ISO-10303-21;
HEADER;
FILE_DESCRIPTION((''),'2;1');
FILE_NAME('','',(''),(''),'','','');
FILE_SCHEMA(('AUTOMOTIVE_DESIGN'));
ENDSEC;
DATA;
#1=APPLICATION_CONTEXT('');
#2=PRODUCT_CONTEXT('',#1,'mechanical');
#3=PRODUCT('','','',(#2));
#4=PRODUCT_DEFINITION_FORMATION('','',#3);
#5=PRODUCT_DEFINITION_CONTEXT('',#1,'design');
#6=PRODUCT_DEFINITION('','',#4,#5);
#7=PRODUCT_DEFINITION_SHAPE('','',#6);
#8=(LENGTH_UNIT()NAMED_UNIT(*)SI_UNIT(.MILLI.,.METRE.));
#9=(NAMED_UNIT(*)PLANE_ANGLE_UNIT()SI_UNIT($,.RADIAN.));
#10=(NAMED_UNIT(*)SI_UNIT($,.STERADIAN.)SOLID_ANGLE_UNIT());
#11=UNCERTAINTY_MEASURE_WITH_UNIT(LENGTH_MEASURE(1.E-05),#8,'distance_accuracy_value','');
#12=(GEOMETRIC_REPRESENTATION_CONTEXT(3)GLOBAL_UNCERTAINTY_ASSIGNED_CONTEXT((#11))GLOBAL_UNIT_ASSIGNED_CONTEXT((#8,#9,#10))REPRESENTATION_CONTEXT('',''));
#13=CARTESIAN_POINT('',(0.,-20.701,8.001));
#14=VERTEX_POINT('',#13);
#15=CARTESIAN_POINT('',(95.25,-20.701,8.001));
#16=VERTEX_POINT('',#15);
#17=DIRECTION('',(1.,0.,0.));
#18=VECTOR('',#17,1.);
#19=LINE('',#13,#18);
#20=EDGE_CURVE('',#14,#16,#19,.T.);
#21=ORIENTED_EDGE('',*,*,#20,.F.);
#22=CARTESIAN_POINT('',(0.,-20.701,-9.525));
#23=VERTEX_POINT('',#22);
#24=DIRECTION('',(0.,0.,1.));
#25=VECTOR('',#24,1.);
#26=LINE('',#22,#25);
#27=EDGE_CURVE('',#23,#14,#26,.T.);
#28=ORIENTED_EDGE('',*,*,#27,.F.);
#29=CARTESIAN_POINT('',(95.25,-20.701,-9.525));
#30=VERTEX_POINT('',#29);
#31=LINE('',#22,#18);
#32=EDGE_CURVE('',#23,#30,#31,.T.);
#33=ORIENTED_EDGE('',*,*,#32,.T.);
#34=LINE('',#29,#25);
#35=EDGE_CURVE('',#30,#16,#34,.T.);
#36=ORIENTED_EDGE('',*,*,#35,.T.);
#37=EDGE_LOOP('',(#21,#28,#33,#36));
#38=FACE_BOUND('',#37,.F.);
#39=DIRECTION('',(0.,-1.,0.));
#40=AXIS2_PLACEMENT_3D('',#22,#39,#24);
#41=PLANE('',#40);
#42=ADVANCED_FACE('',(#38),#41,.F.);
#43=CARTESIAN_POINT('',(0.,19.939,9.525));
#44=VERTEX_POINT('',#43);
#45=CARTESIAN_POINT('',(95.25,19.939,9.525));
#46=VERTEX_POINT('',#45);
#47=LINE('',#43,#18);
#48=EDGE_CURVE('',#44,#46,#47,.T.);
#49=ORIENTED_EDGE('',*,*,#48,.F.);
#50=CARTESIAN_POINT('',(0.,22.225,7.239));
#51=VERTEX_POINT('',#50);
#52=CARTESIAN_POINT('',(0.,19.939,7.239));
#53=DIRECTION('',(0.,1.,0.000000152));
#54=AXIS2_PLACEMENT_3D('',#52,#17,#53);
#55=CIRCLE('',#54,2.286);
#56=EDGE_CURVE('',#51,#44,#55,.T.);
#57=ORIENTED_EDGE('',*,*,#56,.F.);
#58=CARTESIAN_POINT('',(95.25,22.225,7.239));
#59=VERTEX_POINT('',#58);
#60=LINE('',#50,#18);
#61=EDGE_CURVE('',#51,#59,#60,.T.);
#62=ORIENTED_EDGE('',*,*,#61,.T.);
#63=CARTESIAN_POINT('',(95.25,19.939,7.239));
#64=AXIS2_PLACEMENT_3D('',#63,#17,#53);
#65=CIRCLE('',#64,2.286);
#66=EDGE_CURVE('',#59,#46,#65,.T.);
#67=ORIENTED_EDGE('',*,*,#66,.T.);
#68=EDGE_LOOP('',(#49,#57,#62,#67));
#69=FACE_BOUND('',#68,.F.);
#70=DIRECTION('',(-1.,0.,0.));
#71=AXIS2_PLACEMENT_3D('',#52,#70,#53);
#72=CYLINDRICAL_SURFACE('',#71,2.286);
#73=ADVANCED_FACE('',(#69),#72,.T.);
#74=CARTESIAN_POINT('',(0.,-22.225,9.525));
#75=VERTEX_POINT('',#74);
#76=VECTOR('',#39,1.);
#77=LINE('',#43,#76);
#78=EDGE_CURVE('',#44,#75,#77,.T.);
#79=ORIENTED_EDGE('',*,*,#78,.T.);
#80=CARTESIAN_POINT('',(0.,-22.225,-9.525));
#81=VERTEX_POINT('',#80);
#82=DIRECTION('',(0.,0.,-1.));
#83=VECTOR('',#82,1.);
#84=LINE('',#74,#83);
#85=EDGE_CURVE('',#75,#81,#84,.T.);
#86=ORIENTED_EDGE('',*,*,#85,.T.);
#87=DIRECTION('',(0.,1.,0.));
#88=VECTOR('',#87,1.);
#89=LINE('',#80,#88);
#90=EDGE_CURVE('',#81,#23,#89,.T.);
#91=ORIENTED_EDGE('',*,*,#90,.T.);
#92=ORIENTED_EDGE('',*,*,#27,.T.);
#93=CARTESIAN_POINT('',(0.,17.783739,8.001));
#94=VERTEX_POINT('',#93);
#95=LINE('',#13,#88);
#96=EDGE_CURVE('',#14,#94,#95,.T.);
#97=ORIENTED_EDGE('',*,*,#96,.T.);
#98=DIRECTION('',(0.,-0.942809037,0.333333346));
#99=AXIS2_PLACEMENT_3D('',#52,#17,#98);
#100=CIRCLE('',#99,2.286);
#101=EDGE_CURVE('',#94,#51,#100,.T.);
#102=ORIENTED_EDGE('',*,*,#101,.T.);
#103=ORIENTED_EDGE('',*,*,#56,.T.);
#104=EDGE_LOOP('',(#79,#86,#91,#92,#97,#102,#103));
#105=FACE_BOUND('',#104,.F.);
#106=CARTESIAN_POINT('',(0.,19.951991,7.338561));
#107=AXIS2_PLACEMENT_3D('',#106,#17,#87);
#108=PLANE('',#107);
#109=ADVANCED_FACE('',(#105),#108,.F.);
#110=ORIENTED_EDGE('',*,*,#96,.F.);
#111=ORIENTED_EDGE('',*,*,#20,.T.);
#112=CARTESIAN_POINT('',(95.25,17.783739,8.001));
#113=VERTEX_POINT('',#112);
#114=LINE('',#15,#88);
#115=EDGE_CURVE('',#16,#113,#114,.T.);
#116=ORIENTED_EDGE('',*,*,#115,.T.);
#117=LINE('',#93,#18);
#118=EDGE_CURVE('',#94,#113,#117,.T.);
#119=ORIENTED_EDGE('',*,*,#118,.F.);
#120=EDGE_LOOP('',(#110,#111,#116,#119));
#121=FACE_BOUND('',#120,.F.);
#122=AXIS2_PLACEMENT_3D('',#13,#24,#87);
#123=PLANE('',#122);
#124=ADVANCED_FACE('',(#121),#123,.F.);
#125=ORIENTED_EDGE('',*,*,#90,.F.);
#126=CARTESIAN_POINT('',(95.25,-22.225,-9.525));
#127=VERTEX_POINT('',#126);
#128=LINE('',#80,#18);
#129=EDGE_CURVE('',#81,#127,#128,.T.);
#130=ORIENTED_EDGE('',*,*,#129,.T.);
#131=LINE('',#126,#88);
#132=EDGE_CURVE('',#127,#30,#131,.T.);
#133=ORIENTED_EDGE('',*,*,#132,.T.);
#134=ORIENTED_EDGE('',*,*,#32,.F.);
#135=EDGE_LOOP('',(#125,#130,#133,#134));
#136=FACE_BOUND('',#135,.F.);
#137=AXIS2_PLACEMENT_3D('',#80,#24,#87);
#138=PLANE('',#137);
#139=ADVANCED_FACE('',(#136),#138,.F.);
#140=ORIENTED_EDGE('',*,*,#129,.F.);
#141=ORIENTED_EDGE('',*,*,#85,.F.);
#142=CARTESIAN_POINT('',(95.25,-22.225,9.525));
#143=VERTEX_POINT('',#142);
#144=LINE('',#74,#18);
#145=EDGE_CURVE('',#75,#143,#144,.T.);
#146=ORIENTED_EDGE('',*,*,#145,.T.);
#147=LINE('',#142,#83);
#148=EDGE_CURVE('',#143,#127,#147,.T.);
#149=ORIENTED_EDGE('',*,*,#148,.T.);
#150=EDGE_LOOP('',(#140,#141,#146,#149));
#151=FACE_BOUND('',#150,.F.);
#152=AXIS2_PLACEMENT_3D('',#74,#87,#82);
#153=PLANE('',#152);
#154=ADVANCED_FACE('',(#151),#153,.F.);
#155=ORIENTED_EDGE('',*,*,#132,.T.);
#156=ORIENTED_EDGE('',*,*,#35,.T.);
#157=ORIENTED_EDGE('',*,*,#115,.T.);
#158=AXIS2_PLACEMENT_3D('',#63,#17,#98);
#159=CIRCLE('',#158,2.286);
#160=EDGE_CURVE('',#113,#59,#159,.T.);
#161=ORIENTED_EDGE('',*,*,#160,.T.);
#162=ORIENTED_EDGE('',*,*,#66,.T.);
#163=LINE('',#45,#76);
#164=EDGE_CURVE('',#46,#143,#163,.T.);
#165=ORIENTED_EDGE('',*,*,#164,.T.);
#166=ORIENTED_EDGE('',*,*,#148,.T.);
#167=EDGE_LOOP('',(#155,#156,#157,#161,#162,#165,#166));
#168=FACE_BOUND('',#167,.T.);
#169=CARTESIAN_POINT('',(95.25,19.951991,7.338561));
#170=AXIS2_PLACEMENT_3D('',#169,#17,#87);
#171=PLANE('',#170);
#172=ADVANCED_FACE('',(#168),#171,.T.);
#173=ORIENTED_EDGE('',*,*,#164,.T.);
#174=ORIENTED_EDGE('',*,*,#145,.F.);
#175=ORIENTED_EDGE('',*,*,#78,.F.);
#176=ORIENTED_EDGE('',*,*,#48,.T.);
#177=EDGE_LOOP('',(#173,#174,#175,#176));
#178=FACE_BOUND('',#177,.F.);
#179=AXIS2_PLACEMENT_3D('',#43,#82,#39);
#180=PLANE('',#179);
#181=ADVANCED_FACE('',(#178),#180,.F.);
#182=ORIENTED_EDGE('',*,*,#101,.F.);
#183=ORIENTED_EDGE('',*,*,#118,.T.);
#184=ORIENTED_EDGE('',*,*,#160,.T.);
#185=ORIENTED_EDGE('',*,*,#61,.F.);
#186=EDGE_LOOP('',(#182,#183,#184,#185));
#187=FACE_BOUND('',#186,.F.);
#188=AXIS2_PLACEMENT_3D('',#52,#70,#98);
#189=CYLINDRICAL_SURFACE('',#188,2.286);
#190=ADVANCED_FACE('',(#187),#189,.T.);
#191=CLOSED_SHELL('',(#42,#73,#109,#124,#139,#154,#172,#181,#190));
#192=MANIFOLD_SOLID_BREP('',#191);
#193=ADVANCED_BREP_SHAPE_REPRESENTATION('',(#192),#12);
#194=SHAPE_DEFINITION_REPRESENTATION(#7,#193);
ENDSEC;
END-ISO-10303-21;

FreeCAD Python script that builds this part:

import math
import FreeCAD as App
import Part
import Sketcher
from FreeCAD import Vector
Q = App.Units.Quantity

doc = App.newDocument("Part")
body = doc.addObject("PartDesign::Body", "Body")

# Sketch on YZ plane
sketch1 = body.newObject("Sketcher::SketchObject", "Sketch")
sketch1.AttachmentSupport = (doc.getObject("YZ_Plane"), [""])
sketch1.MapMode = "FlatFace"
sketch1.addGeometry([
    Part.ArcOfCircle(Part.Circle(Vector(19.939, 7.239, 0), Vector(0, 0, 1), 2.286), math.radians(0.000009), math.radians(89.999991)),  # 0
    Part.LineSegment(Vector(19.939, 9.525, 0), Vector(-22.225, 9.525, 0)),  # 1
    Part.LineSegment(Vector(-22.225, 9.525, 0), Vector(-22.225, -9.525, 0)),  # 2
    Part.LineSegment(Vector(-22.225, -9.525, 0), Vector(-20.701, -9.525, 0)),  # 3
    Part.LineSegment(Vector(-20.701, -9.525, 0), Vector(-20.701, 8.001, 0)),  # 4
    Part.LineSegment(Vector(-20.701, 8.001, 0), Vector(17.783739, 8.001, 0)),  # 5
    Part.ArcOfCircle(Part.Circle(Vector(19.939, 7.239, 0), Vector(0, 0, 1), 2.286), math.radians(160.528779), math.radians(359.999999)),  # 6
], False)
sketch1.addConstraint([
    Sketcher.Constraint("Tangent", 0, 2, 1, 1),
    Sketcher.Constraint("Coincident", 1, 2, 2, 1),
    Sketcher.Constraint("Coincident", 2, 2, 3, 1),
    Sketcher.Constraint("Coincident", 3, 2, 4, 1),
    Sketcher.Constraint("Coincident", 4, 2, 5, 1),
    Sketcher.Constraint("Coincident", 5, 2, 6, 1),
    Sketcher.Constraint("Tangent", 6, 2, 0, 1),
    Sketcher.Constraint("Horizontal", 1),
    Sketcher.Constraint("Vertical", 2),
    Sketcher.Constraint("Horizontal", 3),
    Sketcher.Constraint("Vertical", 4),
    Sketcher.Constraint("Horizontal", 5),
    Sketcher.Constraint("Equal", 0, 6),
    Sketcher.Constraint("Horizontal", 0, 3, 6, 2),
    Sketcher.Constraint("Radius", 0, Q("0.09 in")),
    Sketcher.Constraint("DistanceX", 1, 2, 1, 1, Q("1.66 in")),
    Sketcher.Constraint("DistanceX", 3, 1, 3, 2, Q("0.06 in")),
    Sketcher.Constraint("DistanceY", 2, 2, 2, 1, Q("0.75 in")),
    Sketcher.Constraint("DistanceY", 4, 1, 4, 2, Q("0.69 in")),
    Sketcher.Constraint("DistanceX", -1, 1, 0, 3, Q("0.785 in")),
    Sketcher.Constraint("DistanceY", -1, 1, 0, 3, Q("0.285 in")),
])
pad1 = body.newObject("PartDesign::Pad", "Pad")
pad1.Profile = sketch1
pad1.Length = Q("3.75 in")

doc.recompute()
